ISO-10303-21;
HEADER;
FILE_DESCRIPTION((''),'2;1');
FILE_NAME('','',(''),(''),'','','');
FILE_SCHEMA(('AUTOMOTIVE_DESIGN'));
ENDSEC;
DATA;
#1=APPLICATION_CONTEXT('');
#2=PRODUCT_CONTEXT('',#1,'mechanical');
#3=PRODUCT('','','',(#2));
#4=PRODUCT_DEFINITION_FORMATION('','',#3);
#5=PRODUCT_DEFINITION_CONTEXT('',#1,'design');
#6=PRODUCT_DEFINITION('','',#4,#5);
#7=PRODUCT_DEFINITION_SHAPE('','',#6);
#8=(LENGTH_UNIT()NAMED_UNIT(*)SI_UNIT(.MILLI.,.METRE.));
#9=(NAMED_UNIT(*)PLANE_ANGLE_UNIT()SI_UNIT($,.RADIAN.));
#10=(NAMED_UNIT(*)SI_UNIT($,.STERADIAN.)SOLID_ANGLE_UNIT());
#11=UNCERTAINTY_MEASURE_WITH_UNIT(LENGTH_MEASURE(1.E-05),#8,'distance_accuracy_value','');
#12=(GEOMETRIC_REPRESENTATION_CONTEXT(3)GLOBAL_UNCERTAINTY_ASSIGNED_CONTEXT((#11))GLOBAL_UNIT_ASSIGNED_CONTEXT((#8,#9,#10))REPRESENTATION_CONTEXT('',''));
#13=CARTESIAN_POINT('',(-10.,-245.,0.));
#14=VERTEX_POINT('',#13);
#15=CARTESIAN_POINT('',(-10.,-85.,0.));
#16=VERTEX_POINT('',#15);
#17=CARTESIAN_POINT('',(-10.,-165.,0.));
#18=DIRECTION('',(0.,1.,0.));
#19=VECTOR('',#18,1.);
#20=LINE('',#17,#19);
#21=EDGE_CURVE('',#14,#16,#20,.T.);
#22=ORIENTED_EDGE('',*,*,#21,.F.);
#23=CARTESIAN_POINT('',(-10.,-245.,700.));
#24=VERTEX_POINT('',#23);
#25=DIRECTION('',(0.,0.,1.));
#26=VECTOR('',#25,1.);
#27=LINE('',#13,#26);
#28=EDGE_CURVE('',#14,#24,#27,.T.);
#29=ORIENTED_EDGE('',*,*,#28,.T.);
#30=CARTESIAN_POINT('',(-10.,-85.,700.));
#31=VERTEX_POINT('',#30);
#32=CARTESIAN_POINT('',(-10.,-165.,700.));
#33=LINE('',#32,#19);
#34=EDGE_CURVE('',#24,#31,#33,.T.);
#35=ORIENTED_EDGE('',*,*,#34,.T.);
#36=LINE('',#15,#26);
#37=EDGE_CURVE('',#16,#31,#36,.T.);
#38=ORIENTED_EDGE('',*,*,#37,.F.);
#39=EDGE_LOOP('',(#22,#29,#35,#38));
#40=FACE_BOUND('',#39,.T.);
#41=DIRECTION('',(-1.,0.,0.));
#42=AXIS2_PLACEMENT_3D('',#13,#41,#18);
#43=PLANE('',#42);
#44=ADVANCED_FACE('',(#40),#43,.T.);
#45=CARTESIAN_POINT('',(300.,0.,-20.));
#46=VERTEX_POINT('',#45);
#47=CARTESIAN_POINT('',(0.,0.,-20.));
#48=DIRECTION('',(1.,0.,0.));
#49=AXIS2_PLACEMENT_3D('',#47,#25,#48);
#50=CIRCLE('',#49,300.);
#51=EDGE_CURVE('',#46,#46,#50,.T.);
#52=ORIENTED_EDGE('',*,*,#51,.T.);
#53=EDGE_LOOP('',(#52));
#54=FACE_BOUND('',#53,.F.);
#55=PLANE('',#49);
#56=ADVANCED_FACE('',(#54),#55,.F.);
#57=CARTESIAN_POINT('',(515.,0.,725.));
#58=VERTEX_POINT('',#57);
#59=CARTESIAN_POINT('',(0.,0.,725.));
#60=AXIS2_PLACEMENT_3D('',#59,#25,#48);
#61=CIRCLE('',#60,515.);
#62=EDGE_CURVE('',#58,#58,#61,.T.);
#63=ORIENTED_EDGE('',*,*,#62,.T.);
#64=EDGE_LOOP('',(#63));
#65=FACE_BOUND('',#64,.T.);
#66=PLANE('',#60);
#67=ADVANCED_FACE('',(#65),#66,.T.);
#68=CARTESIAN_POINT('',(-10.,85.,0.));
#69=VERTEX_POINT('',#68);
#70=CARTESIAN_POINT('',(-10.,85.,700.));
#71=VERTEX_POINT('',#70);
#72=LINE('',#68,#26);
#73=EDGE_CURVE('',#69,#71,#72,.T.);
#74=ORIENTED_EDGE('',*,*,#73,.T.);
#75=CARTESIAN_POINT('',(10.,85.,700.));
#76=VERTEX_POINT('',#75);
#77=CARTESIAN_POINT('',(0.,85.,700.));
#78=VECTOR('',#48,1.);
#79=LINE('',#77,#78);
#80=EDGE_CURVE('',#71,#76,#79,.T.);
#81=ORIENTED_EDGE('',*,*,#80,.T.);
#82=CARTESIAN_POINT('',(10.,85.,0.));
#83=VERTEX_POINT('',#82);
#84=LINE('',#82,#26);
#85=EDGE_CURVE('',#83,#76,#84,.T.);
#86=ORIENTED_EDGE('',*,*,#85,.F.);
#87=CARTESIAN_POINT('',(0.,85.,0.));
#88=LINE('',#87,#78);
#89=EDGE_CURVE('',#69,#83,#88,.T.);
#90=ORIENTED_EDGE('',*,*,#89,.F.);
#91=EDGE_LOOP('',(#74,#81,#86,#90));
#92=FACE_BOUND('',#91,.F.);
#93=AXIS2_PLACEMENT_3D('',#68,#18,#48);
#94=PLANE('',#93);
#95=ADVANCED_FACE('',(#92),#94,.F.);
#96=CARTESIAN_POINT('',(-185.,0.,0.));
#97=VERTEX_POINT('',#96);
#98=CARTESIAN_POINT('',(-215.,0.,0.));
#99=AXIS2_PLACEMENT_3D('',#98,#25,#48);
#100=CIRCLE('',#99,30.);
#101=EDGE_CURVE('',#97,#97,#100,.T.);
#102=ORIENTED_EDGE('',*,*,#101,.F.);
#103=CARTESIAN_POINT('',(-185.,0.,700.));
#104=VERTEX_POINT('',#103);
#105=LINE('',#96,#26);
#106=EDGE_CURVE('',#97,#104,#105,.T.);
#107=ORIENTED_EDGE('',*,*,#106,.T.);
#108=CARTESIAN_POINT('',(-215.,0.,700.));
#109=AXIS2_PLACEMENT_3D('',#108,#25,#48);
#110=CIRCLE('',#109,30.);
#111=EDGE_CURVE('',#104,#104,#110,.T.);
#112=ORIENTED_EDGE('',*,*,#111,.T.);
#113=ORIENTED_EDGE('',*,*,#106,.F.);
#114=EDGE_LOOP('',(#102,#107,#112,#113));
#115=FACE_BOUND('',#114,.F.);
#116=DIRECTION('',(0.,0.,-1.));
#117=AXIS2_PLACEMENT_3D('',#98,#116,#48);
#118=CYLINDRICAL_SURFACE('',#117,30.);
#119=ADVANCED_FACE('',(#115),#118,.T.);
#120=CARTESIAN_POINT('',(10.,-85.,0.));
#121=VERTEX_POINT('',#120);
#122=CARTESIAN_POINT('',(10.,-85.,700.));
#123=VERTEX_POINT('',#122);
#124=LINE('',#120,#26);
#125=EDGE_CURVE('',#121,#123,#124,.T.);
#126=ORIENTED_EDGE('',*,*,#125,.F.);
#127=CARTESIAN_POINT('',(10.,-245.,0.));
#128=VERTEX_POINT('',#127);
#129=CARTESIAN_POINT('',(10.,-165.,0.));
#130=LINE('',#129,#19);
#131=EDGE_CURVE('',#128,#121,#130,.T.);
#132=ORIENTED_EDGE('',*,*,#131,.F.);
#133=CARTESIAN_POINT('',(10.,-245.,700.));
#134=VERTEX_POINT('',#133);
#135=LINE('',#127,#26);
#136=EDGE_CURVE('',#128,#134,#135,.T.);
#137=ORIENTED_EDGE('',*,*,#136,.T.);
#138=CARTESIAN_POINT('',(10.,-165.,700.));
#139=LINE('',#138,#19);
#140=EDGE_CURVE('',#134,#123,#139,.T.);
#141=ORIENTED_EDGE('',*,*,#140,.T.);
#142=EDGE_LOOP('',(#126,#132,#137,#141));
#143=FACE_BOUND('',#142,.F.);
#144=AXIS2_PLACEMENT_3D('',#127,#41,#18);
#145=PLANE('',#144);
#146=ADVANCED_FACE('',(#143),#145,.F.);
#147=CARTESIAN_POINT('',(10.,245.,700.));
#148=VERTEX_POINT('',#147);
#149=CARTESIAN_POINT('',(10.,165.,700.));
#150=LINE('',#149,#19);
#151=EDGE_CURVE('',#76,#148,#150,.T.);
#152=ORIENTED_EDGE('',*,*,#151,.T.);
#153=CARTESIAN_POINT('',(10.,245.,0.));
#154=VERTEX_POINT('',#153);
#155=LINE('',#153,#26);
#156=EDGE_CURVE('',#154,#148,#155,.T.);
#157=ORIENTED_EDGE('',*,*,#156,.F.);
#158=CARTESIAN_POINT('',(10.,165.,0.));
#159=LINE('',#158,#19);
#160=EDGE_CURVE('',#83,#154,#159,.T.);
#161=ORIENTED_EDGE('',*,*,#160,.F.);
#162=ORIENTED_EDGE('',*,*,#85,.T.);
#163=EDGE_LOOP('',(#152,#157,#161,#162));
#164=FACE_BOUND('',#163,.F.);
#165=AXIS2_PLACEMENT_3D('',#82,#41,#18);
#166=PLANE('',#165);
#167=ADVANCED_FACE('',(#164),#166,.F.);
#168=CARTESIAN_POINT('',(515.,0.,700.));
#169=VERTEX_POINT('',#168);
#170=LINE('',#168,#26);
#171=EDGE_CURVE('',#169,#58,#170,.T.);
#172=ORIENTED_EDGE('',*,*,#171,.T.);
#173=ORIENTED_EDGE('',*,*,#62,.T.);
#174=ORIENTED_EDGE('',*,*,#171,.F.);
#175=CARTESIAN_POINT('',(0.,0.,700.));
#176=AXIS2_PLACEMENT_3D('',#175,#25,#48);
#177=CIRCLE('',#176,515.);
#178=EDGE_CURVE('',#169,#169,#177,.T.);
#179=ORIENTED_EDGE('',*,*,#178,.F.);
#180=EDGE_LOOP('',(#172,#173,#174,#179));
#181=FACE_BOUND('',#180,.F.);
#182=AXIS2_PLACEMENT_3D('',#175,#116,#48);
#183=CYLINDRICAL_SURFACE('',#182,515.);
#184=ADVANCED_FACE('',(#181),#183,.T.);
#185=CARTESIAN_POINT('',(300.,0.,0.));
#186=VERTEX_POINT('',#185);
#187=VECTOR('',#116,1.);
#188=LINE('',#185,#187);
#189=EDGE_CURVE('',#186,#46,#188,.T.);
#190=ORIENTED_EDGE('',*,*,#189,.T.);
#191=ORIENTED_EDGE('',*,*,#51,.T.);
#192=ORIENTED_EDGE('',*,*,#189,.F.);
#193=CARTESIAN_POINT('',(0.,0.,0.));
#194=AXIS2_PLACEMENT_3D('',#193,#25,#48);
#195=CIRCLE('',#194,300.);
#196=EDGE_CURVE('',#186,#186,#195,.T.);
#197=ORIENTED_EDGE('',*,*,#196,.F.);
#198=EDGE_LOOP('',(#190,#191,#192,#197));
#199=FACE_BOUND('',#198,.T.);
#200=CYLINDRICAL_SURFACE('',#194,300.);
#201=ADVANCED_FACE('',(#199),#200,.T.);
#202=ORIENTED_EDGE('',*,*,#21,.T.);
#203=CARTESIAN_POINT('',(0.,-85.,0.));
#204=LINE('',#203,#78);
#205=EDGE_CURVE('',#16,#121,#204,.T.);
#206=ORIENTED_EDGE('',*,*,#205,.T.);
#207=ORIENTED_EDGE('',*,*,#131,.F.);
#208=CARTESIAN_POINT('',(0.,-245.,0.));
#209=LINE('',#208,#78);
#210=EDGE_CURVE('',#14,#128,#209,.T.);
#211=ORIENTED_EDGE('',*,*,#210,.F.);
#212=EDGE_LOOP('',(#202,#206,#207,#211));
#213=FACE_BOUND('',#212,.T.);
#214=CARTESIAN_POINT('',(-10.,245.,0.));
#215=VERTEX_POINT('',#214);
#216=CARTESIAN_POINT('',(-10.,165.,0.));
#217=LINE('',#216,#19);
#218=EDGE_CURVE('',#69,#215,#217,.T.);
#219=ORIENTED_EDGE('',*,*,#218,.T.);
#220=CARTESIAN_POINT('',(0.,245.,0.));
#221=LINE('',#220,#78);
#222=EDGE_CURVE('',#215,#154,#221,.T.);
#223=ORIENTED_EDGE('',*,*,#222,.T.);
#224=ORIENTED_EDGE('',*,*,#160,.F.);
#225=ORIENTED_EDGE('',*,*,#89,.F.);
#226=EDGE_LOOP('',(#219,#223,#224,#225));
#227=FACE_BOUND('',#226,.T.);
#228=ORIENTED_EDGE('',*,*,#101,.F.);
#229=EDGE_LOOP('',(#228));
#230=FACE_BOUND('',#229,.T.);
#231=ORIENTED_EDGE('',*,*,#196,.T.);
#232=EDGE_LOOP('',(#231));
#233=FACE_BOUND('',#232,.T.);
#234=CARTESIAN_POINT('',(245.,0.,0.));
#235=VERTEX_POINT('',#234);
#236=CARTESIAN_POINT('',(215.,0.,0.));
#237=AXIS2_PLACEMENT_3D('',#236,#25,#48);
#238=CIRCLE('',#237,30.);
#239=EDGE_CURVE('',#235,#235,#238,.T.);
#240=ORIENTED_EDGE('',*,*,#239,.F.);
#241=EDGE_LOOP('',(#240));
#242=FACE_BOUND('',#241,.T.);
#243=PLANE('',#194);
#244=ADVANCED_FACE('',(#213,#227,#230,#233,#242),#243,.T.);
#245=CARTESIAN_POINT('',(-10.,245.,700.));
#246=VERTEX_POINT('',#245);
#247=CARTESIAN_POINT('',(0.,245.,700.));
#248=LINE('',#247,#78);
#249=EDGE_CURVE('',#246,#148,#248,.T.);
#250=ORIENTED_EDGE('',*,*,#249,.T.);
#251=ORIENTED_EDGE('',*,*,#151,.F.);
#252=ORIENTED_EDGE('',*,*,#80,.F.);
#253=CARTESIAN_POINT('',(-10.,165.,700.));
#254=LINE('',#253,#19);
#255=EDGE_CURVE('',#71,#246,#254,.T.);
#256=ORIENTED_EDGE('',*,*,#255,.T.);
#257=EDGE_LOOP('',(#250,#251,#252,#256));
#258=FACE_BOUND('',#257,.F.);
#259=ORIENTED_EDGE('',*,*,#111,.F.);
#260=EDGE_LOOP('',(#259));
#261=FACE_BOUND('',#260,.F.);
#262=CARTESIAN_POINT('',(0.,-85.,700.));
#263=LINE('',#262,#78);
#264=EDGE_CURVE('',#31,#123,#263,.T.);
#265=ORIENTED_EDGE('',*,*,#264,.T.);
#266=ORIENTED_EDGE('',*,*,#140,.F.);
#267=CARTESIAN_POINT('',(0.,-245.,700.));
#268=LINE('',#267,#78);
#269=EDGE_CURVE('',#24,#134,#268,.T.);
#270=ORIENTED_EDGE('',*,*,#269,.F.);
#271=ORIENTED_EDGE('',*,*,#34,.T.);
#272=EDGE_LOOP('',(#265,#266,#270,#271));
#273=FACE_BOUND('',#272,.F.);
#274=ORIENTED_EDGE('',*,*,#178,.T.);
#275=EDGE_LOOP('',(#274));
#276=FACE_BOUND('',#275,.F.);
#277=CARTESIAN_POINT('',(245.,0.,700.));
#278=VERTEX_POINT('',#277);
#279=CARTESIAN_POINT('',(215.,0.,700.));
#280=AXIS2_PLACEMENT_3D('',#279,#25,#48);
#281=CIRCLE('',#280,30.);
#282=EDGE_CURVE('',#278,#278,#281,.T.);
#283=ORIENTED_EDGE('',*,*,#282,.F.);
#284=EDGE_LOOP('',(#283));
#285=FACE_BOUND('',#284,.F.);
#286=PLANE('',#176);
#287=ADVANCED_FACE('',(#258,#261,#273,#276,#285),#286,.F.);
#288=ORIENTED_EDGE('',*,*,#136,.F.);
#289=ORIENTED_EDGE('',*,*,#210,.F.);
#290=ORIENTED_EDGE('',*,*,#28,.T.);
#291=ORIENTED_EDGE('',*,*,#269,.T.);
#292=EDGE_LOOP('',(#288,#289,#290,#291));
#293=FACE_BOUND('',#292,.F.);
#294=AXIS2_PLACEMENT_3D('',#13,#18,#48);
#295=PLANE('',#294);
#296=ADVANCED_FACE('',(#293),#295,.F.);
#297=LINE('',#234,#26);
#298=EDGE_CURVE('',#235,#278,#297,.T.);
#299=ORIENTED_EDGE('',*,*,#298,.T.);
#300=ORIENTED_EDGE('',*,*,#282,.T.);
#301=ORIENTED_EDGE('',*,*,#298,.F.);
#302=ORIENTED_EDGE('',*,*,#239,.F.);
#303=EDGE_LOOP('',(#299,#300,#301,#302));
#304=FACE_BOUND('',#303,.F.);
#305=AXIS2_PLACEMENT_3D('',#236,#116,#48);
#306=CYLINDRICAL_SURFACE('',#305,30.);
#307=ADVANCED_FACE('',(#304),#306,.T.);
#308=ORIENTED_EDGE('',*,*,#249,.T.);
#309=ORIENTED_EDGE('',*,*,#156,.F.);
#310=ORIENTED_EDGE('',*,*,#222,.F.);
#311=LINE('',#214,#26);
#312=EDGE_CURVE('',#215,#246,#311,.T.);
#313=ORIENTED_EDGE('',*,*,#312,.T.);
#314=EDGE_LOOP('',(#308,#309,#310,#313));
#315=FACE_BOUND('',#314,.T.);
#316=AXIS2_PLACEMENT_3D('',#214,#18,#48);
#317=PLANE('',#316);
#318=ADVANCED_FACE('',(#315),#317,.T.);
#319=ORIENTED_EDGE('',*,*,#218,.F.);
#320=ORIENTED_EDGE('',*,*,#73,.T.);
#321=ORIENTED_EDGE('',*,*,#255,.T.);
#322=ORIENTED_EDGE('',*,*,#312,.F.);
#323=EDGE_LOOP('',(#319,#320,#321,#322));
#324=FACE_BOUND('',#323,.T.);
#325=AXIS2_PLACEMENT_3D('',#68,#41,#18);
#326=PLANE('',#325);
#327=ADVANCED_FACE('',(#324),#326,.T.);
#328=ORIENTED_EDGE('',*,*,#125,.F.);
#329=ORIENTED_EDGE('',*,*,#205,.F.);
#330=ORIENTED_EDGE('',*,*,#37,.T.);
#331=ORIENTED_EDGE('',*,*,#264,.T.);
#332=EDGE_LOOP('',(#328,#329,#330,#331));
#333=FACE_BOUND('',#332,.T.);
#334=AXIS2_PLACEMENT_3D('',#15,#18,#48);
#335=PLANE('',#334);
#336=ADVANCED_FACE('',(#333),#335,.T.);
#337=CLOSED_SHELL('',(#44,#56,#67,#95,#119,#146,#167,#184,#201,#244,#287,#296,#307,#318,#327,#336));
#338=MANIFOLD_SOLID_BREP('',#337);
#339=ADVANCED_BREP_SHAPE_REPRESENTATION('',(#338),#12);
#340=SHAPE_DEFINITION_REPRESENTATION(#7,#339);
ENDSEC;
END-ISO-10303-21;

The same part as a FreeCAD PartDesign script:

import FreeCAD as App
import Part
import Sketcher

V = App.Vector


def add_polygon(sketch, points):
    """Adds a closed chain of lines whose ends are joined by coincident constraints."""
    first, n = sketch.GeometryCount, len(points)
    for a, b in zip(points, points[1:] + points[:1]):
        sketch.addGeometry(Part.LineSegment(App.Vector(*a, 0), App.Vector(*b, 0)), False)
    for i in range(n):
        sketch.addConstraint(Sketcher.Constraint("Coincident", first + i, 2, first + (i + 1) % n, 1))

doc = App.newDocument("Part")
params = doc.addObject("Spreadsheet::Sheet", "Params")
for row, (alias, value) in enumerate([
    ("sketch1_diameter", "600 mm"),
    ("pad1_length", "20 mm"),
    ("sketch2_diameter", "60 mm"),
    ("sketch2_width", "20 mm"),
    ("sketch2_height", "160 mm"),
    ("pad2_length", "700 mm"),
    ("sketch3_diameter", "1030 mm"),
    ("pad3_length", "25 mm"),
], start=1):
    params.set(f"A{row}", alias)
    params.set(f"B{row}", "=" + value)
    params.setAlias(f"B{row}", alias)

body = doc.addObject("PartDesign::Body", "Body")

sketch1 = body.newObject("Sketcher::SketchObject", "Sketch")
sketch1.AttachmentSupport = (doc.getObject("XY_Plane"), [""])
sketch1.MapMode = "FlatFace"
sketch1.addGeometry(Part.Circle(V(0, 0, 0), V(0, 0, 1), 300), False)
sketch1.addConstraint(Sketcher.Constraint("Coincident", 0, 3, -1, 1))
sketch1.addConstraint(Sketcher.Constraint("Diameter", 0, 600.0))
sketch1.setExpression("Constraints[1]", "Params.sketch1_diameter")
pad1 = body.newObject("PartDesign::Pad", "Pad")
pad1.Profile = sketch1
pad1.setExpression("Length", "Params.pad1_length")
pad1.Reversed = True

sketch2 = body.newObject("Sketcher::SketchObject", "Sketch001")
sketch2.AttachmentSupport = (doc.getObject("XY_Plane"), [""])
sketch2.MapMode = "FlatFace"
sketch2.addGeometry(Part.Circle(V(215, 0, 0), V(0, 0, 1), 30), False)
sketch2.addGeometry(Part.Circle(V(-215, 0, 0), V(0, 0, 1), 30), False)
add_polygon(sketch2, [(-10, -85), (-10, -245), (10, -245), (10, -85)])
add_polygon(sketch2, [(-10, 245), (-10, 85), (10, 85), (10, 245)])
sketch2.addConstraint(Sketcher.Constraint("Vertical", 2))
sketch2.addConstraint(Sketcher.Constraint("Horizontal", 3))
sketch2.addConstraint(Sketcher.Constraint("Vertical", 4))
sketch2.addConstraint(Sketcher.Constraint("Horizontal", 5))
sketch2.addConstraint(Sketcher.Constraint("Vertical", 6))
sketch2.addConstraint(Sketcher.Constraint("Horizontal", 7))
sketch2.addConstraint(Sketcher.Constraint("Vertical", 8))
sketch2.addConstraint(Sketcher.Constraint("Horizontal", 9))
sketch2.addConstraint(Sketcher.Constraint("Equal", 0, 1))
sketch2.addConstraint(Sketcher.Constraint("Symmetric", 0, 3, 1, 3, -1, 1))
sketch2.addConstraint(Sketcher.Constraint("Symmetric", 4, 2, 6, 2, -1, 1))
sketch2.addConstraint(Sketcher.Constraint("Symmetric", 2, 2, 8, 2, -1, 1))
sketch2.addConstraint(Sketcher.Constraint("PointOnObject", 0, 3, -1))
sketch2.addConstraint(Sketcher.Constraint("Vertical", 5, 2, 6, 2))
sketch2.addConstraint(Sketcher.Constraint("Diameter", 0, 60.0))
sketch2.addConstraint(Sketcher.Constraint("DistanceX", 3, 1, 3, 2, 20.0))
sketch2.addConstraint(Sketcher.Constraint("DistanceY", 2, 2, 2, 1, 160.0))
sketch2.addConstraint(Sketcher.Constraint("DistanceX", -1, 1, 0, 3, 215.0))
sketch2.addConstraint(Sketcher.Constraint("DistanceY", 2, 2, -1, 1, 245.0))
sketch2.setExpression("Constraints[22]", "Params.sketch2_diameter")
sketch2.setExpression("Constraints[23]", "Params.sketch2_width")
sketch2.setExpression("Constraints[24]", "Params.sketch2_height")
pad2 = body.newObject("PartDesign::Pad", "Pad001")
pad2.Profile = sketch2
pad2.setExpression("Length", "Params.pad2_length")

sketch3 = body.newObject("Sketcher::SketchObject", "Sketch002")
sketch3.AttachmentSupport = (doc.getObject("XY_Plane"), [""])
sketch3.MapMode = "FlatFace"
sketch3.AttachmentOffset = App.Placement(V(0, 0, 700), App.Rotation())
sketch3.addGeometry(Part.Circle(V(0, 0, 0), V(0, 0, 1), 515), False)
sketch3.addConstraint(Sketcher.Constraint("Coincident", 0, 3, -1, 1))
sketch3.addConstraint(Sketcher.Constraint("Diameter", 0, 1030.0))
sketch3.setExpression("Constraints[1]", "Params.sketch3_diameter")
pad3 = body.newObject("PartDesign::Pad", "Pad002")
pad3.Profile = sketch3
pad3.setExpression("Length", "Params.pad3_length")

doc.recompute()
